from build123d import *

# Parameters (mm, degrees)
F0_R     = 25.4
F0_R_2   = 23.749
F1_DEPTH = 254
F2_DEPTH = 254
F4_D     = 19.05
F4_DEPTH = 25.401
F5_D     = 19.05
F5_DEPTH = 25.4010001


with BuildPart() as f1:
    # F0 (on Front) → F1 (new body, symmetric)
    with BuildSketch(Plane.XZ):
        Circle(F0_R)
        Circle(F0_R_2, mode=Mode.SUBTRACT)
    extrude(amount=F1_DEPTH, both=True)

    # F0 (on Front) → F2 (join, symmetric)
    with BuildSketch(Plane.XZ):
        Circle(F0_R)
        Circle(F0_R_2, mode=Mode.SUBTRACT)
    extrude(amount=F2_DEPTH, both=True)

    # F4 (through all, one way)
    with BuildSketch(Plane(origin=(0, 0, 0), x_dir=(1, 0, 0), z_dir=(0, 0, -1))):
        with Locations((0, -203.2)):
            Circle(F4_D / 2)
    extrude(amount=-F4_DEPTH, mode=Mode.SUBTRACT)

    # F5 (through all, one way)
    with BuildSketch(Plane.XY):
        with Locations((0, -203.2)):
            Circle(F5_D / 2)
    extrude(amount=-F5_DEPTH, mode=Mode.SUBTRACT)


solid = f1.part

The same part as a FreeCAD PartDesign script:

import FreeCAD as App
import Part
import Sketcher

V = App.Vector
Q = App.Units.Quantity

doc = App.newDocument("Part")
params = doc.addObject("Spreadsheet::Sheet", "Params")
for row, (alias, value) in enumerate([
    ("sketch1_diameter", "2 in"),
    ("sketch1_diameter2", "1.87 in"),
    ("pad1_length", "20 in"),
    ("sketch2_diameter", "2 in"),
    ("sketch2_diameter2", "1.87 in"),
    ("pad2_length", "20 in"),
    ("sketch3_diameter", "0.75 in"),
    ("sketch4_diameter", "0.75 in"),
], start=1):
    params.set(f"A{row}", alias)
    params.set(f"B{row}", "=" + value)
    params.setAlias(f"B{row}", alias)

body = doc.addObject("PartDesign::Body", "Body")

sketch1 = body.newObject("Sketcher::SketchObject", "Sketch")
sketch1.AttachmentSupport = (doc.getObject("XZ_Plane"), [""])
sketch1.MapMode = "FlatFace"
sketch1.addGeometry([
    Part.Circle(V(0, 0, 0), V(0, 0, 1), 25),
    Part.Circle(V(0, 0, 0), V(0, 0, 1), 24),
], False)
sketch1.addConstraint([
    Sketcher.Constraint("Coincident", 0, 3, -1, 1),
    Sketcher.Constraint("Coincident", 1, 3, -1, 1),
    Sketcher.Constraint("Diameter", 0, Q("2 in")),
    Sketcher.Constraint("Diameter", 1, Q("1.87 in")),
])
sketch1.setExpression("Constraints[2]", "Params.sketch1_diameter")
sketch1.setExpression("Constraints[3]", "Params.sketch1_diameter2")
pad1 = body.newObject("PartDesign::Pad", "Pad")
pad1.Profile = sketch1
pad1.setExpression("Length", "Params.pad1_length")
pad1.Midplane = True

sketch2 = body.newObject("Sketcher::SketchObject", "Sketch001")
sketch2.AttachmentSupport = (doc.getObject("XZ_Plane"), [""])
sketch2.MapMode = "FlatFace"
sketch2.addGeometry([
    Part.Circle(V(0, 0, 0), V(0, 0, 1), 25),
    Part.Circle(V(0, 0, 0), V(0, 0, 1), 24),
], False)
sketch2.addConstraint([
    Sketcher.Constraint("Coincident", 0, 3, -1, 1),
    Sketcher.Constraint("Coincident", 1, 3, -1, 1),
    Sketcher.Constraint("Diameter", 0, Q("2 in")),
    Sketcher.Constraint("Diameter", 1, Q("1.87 in")),
])
sketch2.setExpression("Constraints[2]", "Params.sketch2_diameter")
sketch2.setExpression("Constraints[3]", "Params.sketch2_diameter2")
pad2 = body.newObject("PartDesign::Pad", "Pad001")
pad2.Profile = sketch2
pad2.setExpression("Length", "Params.pad2_length")
pad2.Midplane = True

sketch3 = body.newObject("Sketcher::SketchObject", "Sketch002")
sketch3.AttachmentSupport = (doc.getObject("XY_Plane"), [""])
sketch3.MapMode = "FlatFace"
sketch3.addGeometry(Part.Circle(V(0, 203, 0), V(0, 0, 1), 10), False)
sketch3.addConstraint([
    Sketcher.Constraint("PointOnObject", 0, 3, -2),
    Sketcher.Constraint("Diameter", 0, Q("0.75 in")),
    Sketcher.Constraint("DistanceY", -1, 1, 0, 3, Q("8 in")),
])
sketch3.setExpression("Constraints[1]", "Params.sketch3_diameter")
pocket1 = body.newObject("PartDesign::Pocket", "Pocket")
pocket1.Profile = sketch3
pocket1.Type = "ThroughAll"
pocket1.Reversed = True

sketch4 = body.newObject("Sketcher::SketchObject", "Sketch003")
sketch4.AttachmentSupport = (doc.getObject("XY_Plane"), [""])
sketch4.MapMode = "FlatFace"
sketch4.addGeometry(Part.Circle(V(0, -203, 0), V(0, 0, 1), 10), False)
sketch4.addConstraint([
    Sketcher.Constraint("PointOnObject", 0, 3, -2),
    Sketcher.Constraint("Diameter", 0, Q("0.75 in")),
    Sketcher.Constraint("DistanceY", 0, 3, -1, 1, Q("8 in")),
])
sketch4.setExpression("Constraints[1]", "Params.sketch4_diameter")
pocket2 = body.newObject("PartDesign::Pocket", "Pocket001")
pocket2.Profile = sketch4
pocket2.Type = "ThroughAll"

doc.recompute()
